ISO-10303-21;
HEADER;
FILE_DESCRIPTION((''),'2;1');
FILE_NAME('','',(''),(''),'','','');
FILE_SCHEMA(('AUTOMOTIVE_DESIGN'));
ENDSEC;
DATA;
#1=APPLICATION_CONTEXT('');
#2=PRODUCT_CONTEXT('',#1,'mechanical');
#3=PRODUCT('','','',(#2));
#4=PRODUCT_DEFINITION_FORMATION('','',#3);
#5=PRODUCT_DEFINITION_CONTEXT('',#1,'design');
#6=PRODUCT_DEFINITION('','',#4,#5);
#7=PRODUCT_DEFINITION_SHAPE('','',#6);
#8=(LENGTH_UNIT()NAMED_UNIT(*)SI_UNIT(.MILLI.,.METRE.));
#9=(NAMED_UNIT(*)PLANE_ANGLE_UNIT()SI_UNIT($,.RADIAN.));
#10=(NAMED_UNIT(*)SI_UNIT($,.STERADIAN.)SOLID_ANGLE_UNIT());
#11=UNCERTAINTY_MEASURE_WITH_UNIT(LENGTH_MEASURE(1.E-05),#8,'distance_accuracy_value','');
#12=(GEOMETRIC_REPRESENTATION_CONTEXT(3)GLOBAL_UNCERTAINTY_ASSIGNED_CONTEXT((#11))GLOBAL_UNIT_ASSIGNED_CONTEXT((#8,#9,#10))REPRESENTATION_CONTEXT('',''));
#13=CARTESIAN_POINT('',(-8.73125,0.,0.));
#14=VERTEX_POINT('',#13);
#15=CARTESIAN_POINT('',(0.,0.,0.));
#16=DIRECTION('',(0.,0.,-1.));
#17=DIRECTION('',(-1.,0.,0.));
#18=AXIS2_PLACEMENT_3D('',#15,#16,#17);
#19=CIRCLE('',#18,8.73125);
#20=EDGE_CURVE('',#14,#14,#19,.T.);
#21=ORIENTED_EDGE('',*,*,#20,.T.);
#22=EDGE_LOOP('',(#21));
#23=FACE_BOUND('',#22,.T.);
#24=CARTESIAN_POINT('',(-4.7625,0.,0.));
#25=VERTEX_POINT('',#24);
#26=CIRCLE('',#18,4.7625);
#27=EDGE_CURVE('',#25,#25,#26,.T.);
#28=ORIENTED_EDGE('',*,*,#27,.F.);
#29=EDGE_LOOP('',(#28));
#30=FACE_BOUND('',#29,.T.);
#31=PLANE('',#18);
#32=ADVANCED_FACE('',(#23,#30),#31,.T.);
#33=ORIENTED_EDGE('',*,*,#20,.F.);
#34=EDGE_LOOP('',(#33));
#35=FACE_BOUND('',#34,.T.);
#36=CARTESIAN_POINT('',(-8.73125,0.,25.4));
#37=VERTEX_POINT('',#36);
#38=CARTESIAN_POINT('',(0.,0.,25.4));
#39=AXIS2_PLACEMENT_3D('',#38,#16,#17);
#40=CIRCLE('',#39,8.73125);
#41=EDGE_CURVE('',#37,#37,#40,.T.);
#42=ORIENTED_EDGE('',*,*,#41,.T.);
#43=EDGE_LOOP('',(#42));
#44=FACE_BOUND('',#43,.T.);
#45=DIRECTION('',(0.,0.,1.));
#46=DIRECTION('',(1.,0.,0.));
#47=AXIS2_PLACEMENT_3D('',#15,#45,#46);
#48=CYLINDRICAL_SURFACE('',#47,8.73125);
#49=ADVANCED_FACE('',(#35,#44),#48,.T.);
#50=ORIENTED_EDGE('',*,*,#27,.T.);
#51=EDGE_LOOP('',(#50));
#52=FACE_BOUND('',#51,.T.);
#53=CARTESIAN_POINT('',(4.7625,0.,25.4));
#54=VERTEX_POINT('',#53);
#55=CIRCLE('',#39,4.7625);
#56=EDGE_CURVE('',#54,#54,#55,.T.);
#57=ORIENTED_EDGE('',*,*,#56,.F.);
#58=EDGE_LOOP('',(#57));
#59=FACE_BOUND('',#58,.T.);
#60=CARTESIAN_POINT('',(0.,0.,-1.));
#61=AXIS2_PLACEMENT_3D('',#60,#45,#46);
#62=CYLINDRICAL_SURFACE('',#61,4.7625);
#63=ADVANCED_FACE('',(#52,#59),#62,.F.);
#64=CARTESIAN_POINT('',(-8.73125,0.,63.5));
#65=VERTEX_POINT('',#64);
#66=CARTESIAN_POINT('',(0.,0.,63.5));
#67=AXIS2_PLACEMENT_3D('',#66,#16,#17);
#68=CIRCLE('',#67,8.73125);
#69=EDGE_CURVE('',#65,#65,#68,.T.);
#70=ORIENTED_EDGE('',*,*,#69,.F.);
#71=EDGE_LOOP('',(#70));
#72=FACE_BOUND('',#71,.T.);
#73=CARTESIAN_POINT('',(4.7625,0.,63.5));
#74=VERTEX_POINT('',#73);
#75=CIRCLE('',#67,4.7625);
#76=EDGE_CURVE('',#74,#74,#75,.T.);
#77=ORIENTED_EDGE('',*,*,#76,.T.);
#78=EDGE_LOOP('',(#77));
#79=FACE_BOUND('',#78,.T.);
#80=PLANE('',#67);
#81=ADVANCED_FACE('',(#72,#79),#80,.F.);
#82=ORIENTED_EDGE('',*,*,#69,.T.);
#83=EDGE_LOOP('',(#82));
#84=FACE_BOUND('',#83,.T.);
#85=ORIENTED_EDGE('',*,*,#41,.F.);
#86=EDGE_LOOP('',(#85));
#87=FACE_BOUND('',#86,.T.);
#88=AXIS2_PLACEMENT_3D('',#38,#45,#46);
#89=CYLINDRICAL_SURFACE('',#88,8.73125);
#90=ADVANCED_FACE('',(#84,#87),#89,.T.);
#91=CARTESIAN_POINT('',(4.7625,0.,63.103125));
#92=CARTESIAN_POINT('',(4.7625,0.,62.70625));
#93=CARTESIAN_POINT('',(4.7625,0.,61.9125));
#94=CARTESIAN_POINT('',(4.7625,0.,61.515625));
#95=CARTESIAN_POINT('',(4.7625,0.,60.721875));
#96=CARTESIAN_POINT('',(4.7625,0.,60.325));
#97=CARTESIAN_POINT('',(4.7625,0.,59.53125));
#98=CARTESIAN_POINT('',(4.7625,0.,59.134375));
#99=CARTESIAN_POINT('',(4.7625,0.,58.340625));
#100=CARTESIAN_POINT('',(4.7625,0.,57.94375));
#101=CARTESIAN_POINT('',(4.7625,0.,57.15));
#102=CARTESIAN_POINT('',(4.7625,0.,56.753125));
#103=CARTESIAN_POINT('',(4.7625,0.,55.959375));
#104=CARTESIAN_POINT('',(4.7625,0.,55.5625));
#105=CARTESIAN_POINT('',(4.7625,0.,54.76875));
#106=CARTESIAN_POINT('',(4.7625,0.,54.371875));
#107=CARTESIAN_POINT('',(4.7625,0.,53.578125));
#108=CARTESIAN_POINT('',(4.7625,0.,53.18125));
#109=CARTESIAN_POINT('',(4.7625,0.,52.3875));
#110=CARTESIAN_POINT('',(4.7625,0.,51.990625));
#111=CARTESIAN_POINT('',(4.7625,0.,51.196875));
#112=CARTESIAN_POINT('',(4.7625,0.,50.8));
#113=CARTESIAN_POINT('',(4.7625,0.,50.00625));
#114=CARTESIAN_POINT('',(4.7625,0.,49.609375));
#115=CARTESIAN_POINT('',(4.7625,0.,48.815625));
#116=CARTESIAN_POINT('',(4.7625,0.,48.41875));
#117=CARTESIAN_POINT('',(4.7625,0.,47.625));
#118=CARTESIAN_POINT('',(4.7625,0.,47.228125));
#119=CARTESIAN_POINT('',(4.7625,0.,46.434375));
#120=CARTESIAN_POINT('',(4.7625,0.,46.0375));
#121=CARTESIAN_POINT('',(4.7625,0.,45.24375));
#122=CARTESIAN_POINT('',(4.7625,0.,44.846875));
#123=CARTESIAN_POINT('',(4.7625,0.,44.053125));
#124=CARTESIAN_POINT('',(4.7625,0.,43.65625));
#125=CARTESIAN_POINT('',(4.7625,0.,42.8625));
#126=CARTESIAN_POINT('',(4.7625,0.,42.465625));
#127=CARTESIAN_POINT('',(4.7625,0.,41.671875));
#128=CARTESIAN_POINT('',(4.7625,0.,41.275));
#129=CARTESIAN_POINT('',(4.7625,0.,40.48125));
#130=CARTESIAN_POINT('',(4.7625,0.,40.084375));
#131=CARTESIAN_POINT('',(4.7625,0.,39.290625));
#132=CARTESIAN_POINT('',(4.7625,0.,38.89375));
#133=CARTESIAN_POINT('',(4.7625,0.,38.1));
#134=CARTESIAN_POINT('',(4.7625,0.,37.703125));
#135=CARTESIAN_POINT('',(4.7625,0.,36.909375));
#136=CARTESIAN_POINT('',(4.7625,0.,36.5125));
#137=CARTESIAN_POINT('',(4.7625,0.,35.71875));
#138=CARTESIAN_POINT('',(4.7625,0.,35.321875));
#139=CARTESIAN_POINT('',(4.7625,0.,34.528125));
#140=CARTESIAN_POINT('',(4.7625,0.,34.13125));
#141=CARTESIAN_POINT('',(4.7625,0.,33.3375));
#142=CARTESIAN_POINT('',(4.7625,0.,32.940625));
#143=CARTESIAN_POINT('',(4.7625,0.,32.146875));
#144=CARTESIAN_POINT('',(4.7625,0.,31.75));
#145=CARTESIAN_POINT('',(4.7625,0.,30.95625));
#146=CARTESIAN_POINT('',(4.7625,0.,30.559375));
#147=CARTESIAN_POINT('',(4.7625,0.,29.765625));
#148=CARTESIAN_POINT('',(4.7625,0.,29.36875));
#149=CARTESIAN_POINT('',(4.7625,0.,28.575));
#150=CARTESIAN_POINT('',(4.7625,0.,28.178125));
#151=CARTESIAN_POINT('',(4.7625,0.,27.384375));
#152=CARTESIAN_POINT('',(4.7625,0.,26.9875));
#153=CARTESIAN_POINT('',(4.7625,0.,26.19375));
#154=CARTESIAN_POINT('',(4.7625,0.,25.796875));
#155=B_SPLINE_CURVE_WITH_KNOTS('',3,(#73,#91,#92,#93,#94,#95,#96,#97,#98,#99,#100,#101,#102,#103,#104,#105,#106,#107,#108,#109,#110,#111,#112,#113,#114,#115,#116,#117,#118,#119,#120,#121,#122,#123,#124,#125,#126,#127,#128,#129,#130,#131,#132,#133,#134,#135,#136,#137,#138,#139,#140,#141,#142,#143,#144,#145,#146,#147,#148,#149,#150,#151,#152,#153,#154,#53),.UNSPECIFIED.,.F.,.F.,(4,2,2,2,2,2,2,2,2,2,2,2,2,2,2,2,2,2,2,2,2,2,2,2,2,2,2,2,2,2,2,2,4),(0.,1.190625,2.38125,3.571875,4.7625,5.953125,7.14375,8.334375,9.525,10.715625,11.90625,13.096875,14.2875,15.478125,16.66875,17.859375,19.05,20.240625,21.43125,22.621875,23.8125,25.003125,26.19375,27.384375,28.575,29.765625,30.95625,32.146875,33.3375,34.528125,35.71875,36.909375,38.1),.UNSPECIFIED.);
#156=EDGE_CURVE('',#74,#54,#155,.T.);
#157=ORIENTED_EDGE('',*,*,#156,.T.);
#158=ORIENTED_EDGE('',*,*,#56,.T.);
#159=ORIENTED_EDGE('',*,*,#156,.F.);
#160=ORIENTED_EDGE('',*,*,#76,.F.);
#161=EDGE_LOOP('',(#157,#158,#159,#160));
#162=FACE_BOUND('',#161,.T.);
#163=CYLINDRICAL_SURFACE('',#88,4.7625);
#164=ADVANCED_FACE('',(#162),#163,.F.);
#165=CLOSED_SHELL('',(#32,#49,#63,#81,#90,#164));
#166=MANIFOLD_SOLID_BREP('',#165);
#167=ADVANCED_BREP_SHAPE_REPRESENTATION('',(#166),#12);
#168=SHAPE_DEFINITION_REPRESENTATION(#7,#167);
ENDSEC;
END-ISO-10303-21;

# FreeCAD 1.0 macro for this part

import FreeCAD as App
import Part
import Sketcher

V = App.Vector
Q = App.Units.Quantity

doc = App.newDocument("Part")
params = doc.addObject("Spreadsheet::Sheet", "Params")
for row, (alias, value) in enumerate([
    ("sketch1_diameter", "0.6875 in"),
    ("sketch2_height", "2.5 in"),
    ("sketch3_diameter", "0.375 in"),
    ("sketch4_height", "2.5 in"),
], start=1):
    params.set(f"A{row}", alias)
    params.set(f"B{row}", "=" + value)
    params.setAlias(f"B{row}", alias)

body = doc.addObject("PartDesign::Body", "Body")

# Sketch on XY plane
sketch1 = body.newObject("Sketcher::SketchObject", "Sketch")
sketch1.AttachmentSupport = (doc.getObject("XY_Plane"), [""])
sketch1.MapMode = "FlatFace"
sketch1.addGeometry(Part.Circle(V(0, 0, 0), V(0, 0, 1), 9), False)
sketch1.addConstraint([
    Sketcher.Constraint("Coincident", 0, 3, -1, 1),
    Sketcher.Constraint("Diameter", 0, Q("0.6875 in")),
])
sketch1.setExpression("Constraints[1]", "Params.sketch1_diameter")

# Sketch on XZ plane
sketch2 = body.newObject("Sketcher::SketchObject", "Sketch001")
sketch2.AttachmentSupport = (doc.getObject("XZ_Plane"), [""])
sketch2.MapMode = "FlatFace"
sketch2.addGeometry(Part.LineSegment(V(0, 0, 0), V(0, 64, 0)), False)
sketch2.addConstraint([
    Sketcher.Constraint("Vertical", 0),
    Sketcher.Constraint("Coincident", 0, 1, -1, 1),
    Sketcher.Constraint("DistanceY", 0, 1, 0, 2, Q("2.5 in")),
])
sketch2.setExpression("Constraints[2]", "Params.sketch2_height")
doc.recompute()

additivepipe = body.newObject("PartDesign::AdditivePipe", "AdditivePipe")
additivepipe.Profile = sketch1
additivepipe.Spine = (sketch2, ["Edge1"])

# Sketch on XY plane
sketch3 = body.newObject("Sketcher::SketchObject", "Sketch002")
sketch3.AttachmentSupport = (doc.getObject("XY_Plane"), [""])
sketch3.MapMode = "FlatFace"
sketch3.addGeometry(Part.Circle(V(0, 0, 0), V(0, 0, 1), 4.8), False)
sketch3.addConstraint([
    Sketcher.Constraint("Coincident", 0, 3, -1, 1),
    Sketcher.Constraint("Diameter", 0, Q("0.375 in")),
])
sketch3.setExpression("Constraints[1]", "Params.sketch3_diameter")

# Sketch on XZ plane
sketch4 = body.newObject("Sketcher::SketchObject", "Sketch003")
sketch4.AttachmentSupport = (doc.getObject("XZ_Plane"), [""])
sketch4.MapMode = "FlatFace"
sketch4.addGeometry(Part.LineSegment(V(0, 0, 0), V(0, 64, 0)), False)
sketch4.addConstraint([
    Sketcher.Constraint("Vertical", 0),
    Sketcher.Constraint("Coincident", 0, 1, -1, 1),
    Sketcher.Constraint("DistanceY", 0, 1, 0, 2, Q("2.5 in")),
])
sketch4.setExpression("Constraints[2]", "Params.sketch4_height")
doc.recompute()

subtractivepipe = body.newObject("PartDesign::SubtractivePipe", "SubtractivePipe")
subtractivepipe.Profile = sketch3
subtractivepipe.Spine = (sketch4, ["Edge1"])

doc.recompute()
